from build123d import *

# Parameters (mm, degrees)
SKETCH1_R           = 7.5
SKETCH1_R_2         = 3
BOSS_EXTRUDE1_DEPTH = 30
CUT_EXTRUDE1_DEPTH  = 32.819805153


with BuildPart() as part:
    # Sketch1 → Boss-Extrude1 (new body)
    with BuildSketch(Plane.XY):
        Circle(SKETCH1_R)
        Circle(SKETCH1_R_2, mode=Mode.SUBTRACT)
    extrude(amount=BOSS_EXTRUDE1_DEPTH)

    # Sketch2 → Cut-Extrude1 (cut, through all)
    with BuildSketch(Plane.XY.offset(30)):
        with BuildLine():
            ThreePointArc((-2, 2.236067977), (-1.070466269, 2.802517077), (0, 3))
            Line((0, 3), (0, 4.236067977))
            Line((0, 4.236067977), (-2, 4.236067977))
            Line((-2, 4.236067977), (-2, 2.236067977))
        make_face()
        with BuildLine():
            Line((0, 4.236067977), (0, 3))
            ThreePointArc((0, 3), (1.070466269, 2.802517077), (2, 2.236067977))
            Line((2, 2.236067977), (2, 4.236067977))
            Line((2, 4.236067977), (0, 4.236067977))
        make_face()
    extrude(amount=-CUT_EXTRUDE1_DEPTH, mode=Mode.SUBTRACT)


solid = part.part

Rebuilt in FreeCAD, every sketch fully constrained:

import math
import FreeCAD as App
import Part
import Sketcher

V = App.Vector

doc = App.newDocument("Part")
body = doc.addObject("PartDesign::Body", "Body")

# Sketch on XY plane
sketch1 = body.newObject("Sketcher::SketchObject", "Sketch")
sketch1.AttachmentSupport = (doc.getObject("XY_Plane"), [""])
sketch1.MapMode = "FlatFace"
sketch1.addGeometry([
    Part.Circle(V(0, 0, 0), V(0, 0, 1), 7.5),
    Part.Circle(V(0, 0, 0), V(0, 0, 1), 3),
], False)
sketch1.addConstraint([
    Sketcher.Constraint("Coincident", 0, 3, -1, 1),
    Sketcher.Constraint("Coincident", 1, 3, -1, 1),
    Sketcher.Constraint("Diameter", 0, 15.0),
    Sketcher.Constraint("Diameter", 1, 6.0),
])
pad1 = body.newObject("PartDesign::Pad", "Pad")
pad1.Profile = sketch1
pad1.Length = 30

# Sketch on XY plane
sketch2 = body.newObject("Sketcher::SketchObject", "Sketch001")
sketch2.AttachmentSupport = (doc.getObject("XY_Plane"), [""])
sketch2.MapMode = "FlatFace"
sketch2.AttachmentOffset = App.Placement(V(0, 0, 30), App.Rotation())
sketch2.addGeometry([
    Part.ArcOfCircle(Part.Circle(V(0, 0, 0), V(0, 0, 1), 3), math.radians(90), math.radians(131.810315)),  # 0
    Part.ArcOfCircle(Part.Circle(V(0, 0, 0), V(0, 0, 1), 3), math.radians(48.189685), math.radians(90)),  # 1
    Part.LineSegment(V(2, 2.236068, 0), V(2, 4.236068, 0)),  # 2
    Part.LineSegment(V(2, 4.236068, 0), V(-2, 4.236068, 0)),  # 3
    Part.LineSegment(V(-2, 4.236068, 0), V(-2, 2.236068, 0)),  # 4
], False)
sketch2.addConstraint([
    Sketcher.Constraint("Tangent", 0, 1, 1, 2),
    Sketcher.Constraint("Coincident", 1, 1, 2, 1),
    Sketcher.Constraint("Coincident", 2, 2, 3, 1),
    Sketcher.Constraint("Coincident", 3, 2, 4, 1),
    Sketcher.Constraint("Coincident", 4, 2, 0, 2),
    Sketcher.Constraint("Vertical", 2),
    Sketcher.Constraint("Horizontal", 3),
    Sketcher.Constraint("Vertical", 4),
    Sketcher.Constraint("Coincident", 0, 3, -1, 1),
    Sketcher.Constraint("Equal", 0, 1),
    Sketcher.Constraint("PointOnObject", 0, 1, -2),
    Sketcher.Constraint("Horizontal", 1, 1, 4, 2),
    Sketcher.Constraint("Radius", 0, 3.0),
    Sketcher.Constraint("DistanceX", 3, 2, 3, 1, 4.0),
    Sketcher.Constraint("DistanceY", 2, 1, 2, 2, 2.0),
])
pocket1 = body.newObject("PartDesign::Pocket", "Pocket")
pocket1.Profile = sketch2
pocket1.Type = "ThroughAll"

doc.recompute()
